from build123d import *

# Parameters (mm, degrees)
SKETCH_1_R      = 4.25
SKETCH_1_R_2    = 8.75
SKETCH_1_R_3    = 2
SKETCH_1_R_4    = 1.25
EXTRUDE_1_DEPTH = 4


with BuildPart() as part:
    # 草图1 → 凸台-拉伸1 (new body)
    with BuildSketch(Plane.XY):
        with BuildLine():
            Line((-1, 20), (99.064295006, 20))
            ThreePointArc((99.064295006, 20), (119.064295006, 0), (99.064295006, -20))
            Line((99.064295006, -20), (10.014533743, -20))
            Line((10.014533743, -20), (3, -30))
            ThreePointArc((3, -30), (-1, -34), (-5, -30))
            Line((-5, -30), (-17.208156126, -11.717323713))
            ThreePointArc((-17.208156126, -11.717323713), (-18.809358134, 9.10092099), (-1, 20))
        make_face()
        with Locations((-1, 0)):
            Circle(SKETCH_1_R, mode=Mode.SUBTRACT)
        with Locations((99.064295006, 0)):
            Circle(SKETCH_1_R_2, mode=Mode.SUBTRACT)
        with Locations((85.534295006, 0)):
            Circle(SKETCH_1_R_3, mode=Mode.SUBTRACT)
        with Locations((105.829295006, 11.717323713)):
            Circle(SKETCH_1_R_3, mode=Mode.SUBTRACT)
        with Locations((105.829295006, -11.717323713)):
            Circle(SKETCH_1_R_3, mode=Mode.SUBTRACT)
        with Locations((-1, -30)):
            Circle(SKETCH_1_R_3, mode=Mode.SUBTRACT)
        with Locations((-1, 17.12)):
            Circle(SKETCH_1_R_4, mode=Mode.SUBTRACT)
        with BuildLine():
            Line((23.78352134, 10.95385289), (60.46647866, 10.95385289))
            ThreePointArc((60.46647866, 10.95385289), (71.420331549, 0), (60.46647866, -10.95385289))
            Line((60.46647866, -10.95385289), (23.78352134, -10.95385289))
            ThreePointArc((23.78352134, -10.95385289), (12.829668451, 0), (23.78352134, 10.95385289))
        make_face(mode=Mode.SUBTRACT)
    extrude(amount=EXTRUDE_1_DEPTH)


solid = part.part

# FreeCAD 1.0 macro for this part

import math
import FreeCAD as App
import Part
import Sketcher

doc = App.newDocument("Part")
body = doc.addObject("PartDesign::Body", "Body")

# Sketch on XY plane
sketch1 = body.newObject("Sketcher::SketchObject", "Sketch")
sketch1.AttachmentSupport = (doc.getObject("XY_Plane"), [""])
sketch1.MapMode = "FlatFace"
sketch1.addGeometry([
    Part.LineSegment(App.Vector(99.064295, 20, 0), App.Vector(-1, 20, 0)),  # 0
    Part.ArcOfCircle(Part.Circle(App.Vector(-1, 0, 0), App.Vector(0, 0, 1), 20), math.radians(90), math.radians(215.864206)),  # 1
    Part.LineSegment(App.Vector(-17.208156, -11.717324, 0), App.Vector(-5, -30, 0)),  # 2
    Part.ArcOfCircle(Part.Circle(App.Vector(-1, -30, 0), App.Vector(0, 0, 1), 4), math.radians(180), math.radians(360)),  # 3
    Part.LineSegment(App.Vector(3, -30, 0), App.Vector(10.014534, -20, 0)),  # 4
    Part.LineSegment(App.Vector(10.014534, -20, 0), App.Vector(99.064295, -20, 0)),  # 5
    Part.ArcOfCircle(Part.Circle(App.Vector(99.064295, 0, 0), App.Vector(0, 0, 1), 20), math.radians(-90), math.radians(90)),  # 6
    Part.Circle(App.Vector(105.829295, -11.717324, 0), App.Vector(0, 0, 1), 2),  # 7
    Part.Circle(App.Vector(-1, -30, 0), App.Vector(0, 0, 1), 2),  # 8
    Part.Circle(App.Vector(99.064295, 0, 0), App.Vector(0, 0, 1), 8.75),  # 9
    Part.Circle(App.Vector(85.534295, 0, 0), App.Vector(0, 0, 1), 2),  # 10
    Part.Circle(App.Vector(105.829295, 11.717324, 0), App.Vector(0, 0, 1), 2),  # 11
    Part.LineSegment(App.Vector(23.783521, 10.953853, 0), App.Vector(60.466479, 10.953853, 0)),  # 12
    Part.ArcOfCircle(Part.Circle(App.Vector(60.466479, 0, 0), App.Vector(0, 0, 1), 10.953853), math.radians(-90), math.radians(90)),  # 13
    Part.LineSegment(App.Vector(60.466479, -10.953853, 0), App.Vector(23.783521, -10.953853, 0)),  # 14
    Part.ArcOfCircle(Part.Circle(App.Vector(23.783521, 0, 0), App.Vector(0, 0, 1), 10.953853), math.radians(90), math.radians(270)),  # 15
    Part.Circle(App.Vector(-1, 0, 0), App.Vector(0, 0, 1), 4.25),  # 16
    Part.Circle(App.Vector(-1, 17.12, 0), App.Vector(0, 0, 1), 1.25),  # 17
], False)
sketch1.addConstraint([
    Sketcher.Constraint("Tangent", 0, 2, 1, 1),
    Sketcher.Constraint("Coincident", 1, 2, 2, 1),
    Sketcher.Constraint("Coincident", 2, 2, 3, 1),
    Sketcher.Constraint("Coincident", 3, 2, 4, 1),
    Sketcher.Constraint("Coincident", 4, 2, 5, 1),
    Sketcher.Constraint("Tangent", 5, 2, 6, 1),
    Sketcher.Constraint("Tangent", 6, 2, 0, 1),
    Sketcher.Constraint("Tangent", 12, 2, 13, 2),
    Sketcher.Constraint("Tangent", 13, 1, 14, 1),
    Sketcher.Constraint("Tangent", 14, 2, 15, 2),
    Sketcher.Constraint("Tangent", 15, 1, 12, 1),
    Sketcher.Constraint("Horizontal", 0),
    Sketcher.Constraint("Horizontal", 5),
    Sketcher.Constraint("Horizontal", 12),
    Sketcher.Constraint("Horizontal", 14),
    Sketcher.Constraint("Coincident", 8, 3, 3, 3),
    Sketcher.Constraint("Coincident", 9, 3, 6, 3),
    Sketcher.Constraint("Coincident", 16, 3, 1, 3),
    Sketcher.Constraint("Equal", 1, 6),
    Sketcher.Constraint("Equal", 7, 8),
    Sketcher.Constraint("Equal", 8, 10),
    Sketcher.Constraint("Equal", 10, 11),
    Sketcher.Constraint("Symmetric", 7, 3, 11, 3, -1),
    Sketcher.Constraint("PointOnObject", 1, 3, -1),
    Sketcher.Constraint("PointOnObject", 10, 3, -1),
    Sketcher.Constraint("PointOnObject", 13, 3, -1),
    Sketcher.Constraint("Horizontal", 7, 3, 1, 2),
    Sketcher.Constraint("Horizontal", 8, 3, 2, 2),
    Sketcher.Constraint("Horizontal", 2, 2, 3, 2),
    Sketcher.Constraint("Vertical", 1, 3, 3, 3),
    Sketcher.Constraint("Vertical", 16, 3, 17, 3),
    Sketcher.Constraint("Diameter", 7, 4.0),
    Sketcher.Constraint("Radius", 1, 20.0),
    Sketcher.Constraint("Radius", 3, 4.0),
    Sketcher.Constraint("Diameter", 9, 17.5),
    Sketcher.Constraint("Diameter", 16, 8.5),
    Sketcher.Constraint("Diameter", 17, 2.5),
    Sketcher.Constraint("DistanceX", 1, 3, -1, 1, 1.0),
    Sketcher.Constraint("DistanceY", 3, 3, -1, 1, 30.0),
    Sketcher.Constraint("DistanceY", -1, 1, 17, 3, 17.12),
    Sketcher.Constraint("DistanceX", 10, 3, 6, 3, 13.53),
    Sketcher.Constraint("Radius", 13, 10.953853),
    Sketcher.Constraint("DistanceX", 6, 3, 7, 3, 6.765),
    Sketcher.Constraint("DistanceX", 5, 1, 5, 2, 89.049761),
    Sketcher.Constraint("Distance", 2, 21.983979),
    Sketcher.Constraint("DistanceX", 0, 2, 0, 1, 100.064295),
    Sketcher.Constraint("DistanceX", 12, 1, 12, 2, 36.682957),
    Sketcher.Constraint("DistanceX", -1, 1, 13, 3, 60.466479),
])
pad1 = body.newObject("PartDesign::Pad", "Pad")
pad1.Profile = sketch1
pad1.Length = 4

doc.recompute()
